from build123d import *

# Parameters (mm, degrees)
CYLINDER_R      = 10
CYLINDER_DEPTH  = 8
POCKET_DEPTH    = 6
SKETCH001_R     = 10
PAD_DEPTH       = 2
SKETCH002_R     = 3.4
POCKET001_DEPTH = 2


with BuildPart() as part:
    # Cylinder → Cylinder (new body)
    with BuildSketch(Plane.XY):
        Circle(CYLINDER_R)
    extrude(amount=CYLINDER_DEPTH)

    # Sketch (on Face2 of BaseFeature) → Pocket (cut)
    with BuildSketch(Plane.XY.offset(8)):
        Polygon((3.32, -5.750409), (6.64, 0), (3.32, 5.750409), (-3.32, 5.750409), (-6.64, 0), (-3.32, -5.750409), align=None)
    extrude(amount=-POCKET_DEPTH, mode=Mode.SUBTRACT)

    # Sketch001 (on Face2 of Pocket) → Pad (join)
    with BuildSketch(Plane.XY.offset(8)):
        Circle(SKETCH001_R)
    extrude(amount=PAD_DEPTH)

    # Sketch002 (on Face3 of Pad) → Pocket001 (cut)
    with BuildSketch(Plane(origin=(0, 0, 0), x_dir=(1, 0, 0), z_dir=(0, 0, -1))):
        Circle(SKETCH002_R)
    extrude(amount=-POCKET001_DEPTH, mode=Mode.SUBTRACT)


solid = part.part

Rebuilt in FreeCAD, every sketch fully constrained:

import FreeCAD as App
import Part
import Sketcher
from FreeCAD import Vector
Q = App.Units.Quantity

doc = App.newDocument("Part")
body = doc.addObject("PartDesign::Body", "Body")

sketch1 = doc.addObject("Sketcher::SketchObject", "Sketch")
body.addObject(sketch1)
sketch1.AttachmentSupport = (doc.XY_Plane, [""])
sketch1.MapMode = "FlatFace"
sketch1.addGeometry(Part.Circle(Vector(0, 0, 0), Vector(0, 0, 1), 10), False)
sketch1.addConstraint(Sketcher.Constraint("Coincident", 0, 3, -1, 1))
sketch1.addConstraint(Sketcher.Constraint("Diameter", 0, 20.0))
pad1 = doc.addObject("PartDesign::Pad", "Pad")
body.addObject(pad1)
pad1.Profile = sketch1
pad1.Length = 8

sketch2 = doc.addObject("Sketcher::SketchObject", "Sketch001")
body.addObject(sketch2)
sketch2.AttachmentSupport = (doc.XY_Plane, [""])
sketch2.MapMode = "FlatFace"
sketch2.AttachmentOffset = App.Placement(Vector(0, 0, 8), App.Rotation())
sketch2.addGeometry(Part.LineSegment(Vector(3, -6, 0), Vector(7, 0, 0)), False)
sketch2.addGeometry(Part.LineSegment(Vector(7, 0, 0), Vector(3, 6, 0)), False)
sketch2.addGeometry(Part.LineSegment(Vector(3, 6, 0), Vector(-3, 6, 0)), False)
sketch2.addGeometry(Part.LineSegment(Vector(-3, 6, 0), Vector(-7, 0, 0)), False)
sketch2.addGeometry(Part.LineSegment(Vector(-7, 0, 0), Vector(-3, -6, 0)), False)
sketch2.addGeometry(Part.LineSegment(Vector(-3, -6, 0), Vector(3, -6, 0)), False)
sketch2.addConstraint(Sketcher.Constraint("Coincident", 0, 2, 1, 1))
sketch2.addConstraint(Sketcher.Constraint("Coincident", 1, 2, 2, 1))
sketch2.addConstraint(Sketcher.Constraint("Coincident", 2, 2, 3, 1))
sketch2.addConstraint(Sketcher.Constraint("Coincident", 3, 2, 4, 1))
sketch2.addConstraint(Sketcher.Constraint("Coincident", 4, 2, 5, 1))
sketch2.addConstraint(Sketcher.Constraint("Coincident", 5, 2, 0, 1))
sketch2.addConstraint(Sketcher.Constraint("Horizontal", 2))
sketch2.addConstraint(Sketcher.Constraint("Horizontal", 5))
sketch2.addConstraint(Sketcher.Constraint("Symmetric", 0, 2, 3, 2, -1, 1))
sketch2.addConstraint(Sketcher.Constraint("Symmetric", 1, 2, 4, 2, -1, 1))
sketch2.addConstraint(Sketcher.Constraint("PointOnObject", 0, 2, -1))
sketch2.addConstraint(Sketcher.Constraint("Parallel", 0, 3))
sketch2.addConstraint(Sketcher.Constraint("Vertical", 2, 2, 4, 2))
sketch2.addConstraint(Sketcher.Constraint("Angle", 0, Q("60.000001 deg")))
sketch2.addConstraint(Sketcher.Constraint("DistanceX", 2, 2, 2, 1, 6.64))
sketch2.addConstraint(Sketcher.Constraint("Distance", 0, 6.64))
pocket1 = doc.addObject("PartDesign::Pocket", "Pocket")
body.addObject(pocket1)
pocket1.Profile = sketch2
pocket1.Length = 6

sketch3 = doc.addObject("Sketcher::SketchObject", "Sketch002")
body.addObject(sketch3)
sketch3.AttachmentSupport = (doc.XY_Plane, [""])
sketch3.MapMode = "FlatFace"
sketch3.AttachmentOffset = App.Placement(Vector(0, 0, 8), App.Rotation())
sketch3.addGeometry(Part.Circle(Vector(0, 0, 0), Vector(0, 0, 1), 10), False)
sketch3.addConstraint(Sketcher.Constraint("Coincident", 0, 3, -1, 1))
sketch3.addConstraint(Sketcher.Constraint("Diameter", 0, 20.0))
pad2 = doc.addObject("PartDesign::Pad", "Pad001")
body.addObject(pad2)
pad2.Profile = sketch3
pad2.Length = 2

sketch4 = doc.addObject("Sketcher::SketchObject", "Sketch003")
body.addObject(sketch4)
sketch4.AttachmentSupport = (doc.XY_Plane, [""])
sketch4.MapMode = "FlatFace"
sketch4.addGeometry(Part.Circle(Vector(0, 0, 0), Vector(0, 0, 1), 3.4), False)
sketch4.addConstraint(Sketcher.Constraint("Coincident", 0, 3, -1, 1))
sketch4.addConstraint(Sketcher.Constraint("Diameter", 0, 6.8))
pocket2 = doc.addObject("PartDesign::Pocket", "Pocket001")
body.addObject(pocket2)
pocket2.Profile = sketch4
pocket2.Length = 2
pocket2.Reversed = True

doc.recompute()
